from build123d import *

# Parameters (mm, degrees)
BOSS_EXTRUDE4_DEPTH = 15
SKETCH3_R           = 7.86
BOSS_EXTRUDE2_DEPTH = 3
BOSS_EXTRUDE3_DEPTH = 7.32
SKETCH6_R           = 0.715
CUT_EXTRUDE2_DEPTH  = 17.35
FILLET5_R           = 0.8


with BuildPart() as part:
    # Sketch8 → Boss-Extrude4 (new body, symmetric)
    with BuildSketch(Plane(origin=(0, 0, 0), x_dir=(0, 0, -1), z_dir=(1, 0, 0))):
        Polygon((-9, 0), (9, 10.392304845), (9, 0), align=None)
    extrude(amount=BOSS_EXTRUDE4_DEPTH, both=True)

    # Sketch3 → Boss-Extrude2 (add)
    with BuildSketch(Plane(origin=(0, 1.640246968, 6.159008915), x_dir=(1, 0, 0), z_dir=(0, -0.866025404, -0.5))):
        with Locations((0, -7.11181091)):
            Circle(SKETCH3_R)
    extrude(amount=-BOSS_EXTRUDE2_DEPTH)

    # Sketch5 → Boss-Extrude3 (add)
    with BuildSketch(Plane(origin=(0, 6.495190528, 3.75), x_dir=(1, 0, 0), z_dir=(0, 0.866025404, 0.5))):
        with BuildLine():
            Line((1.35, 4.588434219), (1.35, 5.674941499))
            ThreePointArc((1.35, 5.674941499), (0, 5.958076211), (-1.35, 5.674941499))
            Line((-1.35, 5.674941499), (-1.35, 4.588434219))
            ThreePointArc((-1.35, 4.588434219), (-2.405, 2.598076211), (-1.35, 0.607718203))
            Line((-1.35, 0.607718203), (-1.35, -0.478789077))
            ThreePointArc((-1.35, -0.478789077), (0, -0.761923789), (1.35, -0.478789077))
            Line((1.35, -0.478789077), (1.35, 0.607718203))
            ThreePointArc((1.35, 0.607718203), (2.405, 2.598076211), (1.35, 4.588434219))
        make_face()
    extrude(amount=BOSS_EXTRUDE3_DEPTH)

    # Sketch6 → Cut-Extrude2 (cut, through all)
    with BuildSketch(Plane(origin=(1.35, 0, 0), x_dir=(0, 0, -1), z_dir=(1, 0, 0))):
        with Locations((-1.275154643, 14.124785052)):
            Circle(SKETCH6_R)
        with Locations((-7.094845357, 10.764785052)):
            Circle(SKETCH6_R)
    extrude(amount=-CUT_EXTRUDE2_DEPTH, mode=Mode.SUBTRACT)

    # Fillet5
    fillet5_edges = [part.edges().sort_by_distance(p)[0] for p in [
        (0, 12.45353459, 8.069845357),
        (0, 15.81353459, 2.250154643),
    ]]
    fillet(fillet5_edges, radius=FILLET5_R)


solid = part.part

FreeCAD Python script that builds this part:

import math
import FreeCAD as App
import Part
import Sketcher
Q = App.Units.Quantity


def edges_at(feature, points):
    """Names of the edges that pass closest to the given points."""
    edges = feature.Shape.Edges
    near = lambda p: min(range(len(edges)), key=lambda i: edges[i].distToShape(Part.Vertex(*p))[0])
    return sorted({f"Edge{near(p) + 1}" for p in points})


def add_polygon(sketch, points):
    """Adds a closed chain of lines whose ends are joined by coincident constraints."""
    first, n = sketch.GeometryCount, len(points)
    for a, b in zip(points, points[1:] + points[:1]):
        sketch.addGeometry(Part.LineSegment(App.Vector(*a, 0), App.Vector(*b, 0)), False)
    for i in range(n):
        sketch.addConstraint(Sketcher.Constraint("Coincident", first + i, 2, first + (i + 1) % n, 1))

doc = App.newDocument("Part")
params = doc.addObject("Spreadsheet::Sheet", "Params")
for row, (alias, value) in enumerate([
    ("sketch1_height", "18 mm"),
    ("pad1_length", "30 mm"),
    ("sketch2_diameter", "15.72 mm"),
    ("pad2_length", "3 mm"),
    ("sketch3_radius", "3.36 mm"),
    ("pad3_length", "7.32 mm"),
    ("sketch4_diameter", "1.43 mm"),
    ("fillet_radius", "0.8 mm"),
], start=1):
    params.set(f"A{row}", alias)
    params.set(f"B{row}", "=" + value)
    params.setAlias(f"B{row}", alias)

body = doc.addObject("PartDesign::Body", "Body")

sketch1 = doc.addObject("Sketcher::SketchObject", "Sketch")
body.addObject(sketch1)
sketch1.AttachmentSupport = (doc.YZ_Plane, [""])
sketch1.MapMode = "FlatFace"
add_polygon(sketch1, [(10.392305, -9), (0, 9), (0, -9)])
sketch1.addConstraint([
    Sketcher.Constraint("Vertical", 1),
    Sketcher.Constraint("Horizontal", 2),
    Sketcher.Constraint("Symmetric", 0, 2, 1, 2, -1, 1),
    Sketcher.Constraint("DistanceY", 1, 2, 1, 1, Q("18 mm")),
    Sketcher.Constraint("Angle", 0, Q("120 deg")),
])
sketch1.setExpression("Constraints[6]", "Params.sketch1_height")
pad1 = doc.addObject("PartDesign::Pad", "Pad")
body.addObject(pad1)
pad1.Profile = sketch1
pad1.setExpression("Length", "Params.pad1_length")
pad1.Midplane = True

sketch2 = doc.addObject("Sketcher::SketchObject", "Sketch001")
body.addObject(sketch2)
sketch2.Placement = App.Placement(App.Vector(0, 1.640247, 6.159009), App.Rotation(App.Vector(1, 0, 0), App.Vector(0, -0.5, 0.866025404), App.Vector(0, -0.866025404, -0.5), "ZXY"))
sketch2.addGeometry(Part.Circle(App.Vector(0, -7.111811, 0), App.Vector(0, 0, 1), 7.86), False)
sketch2.addConstraint([
    Sketcher.Constraint("PointOnObject", 0, 3, -2),
    Sketcher.Constraint("Diameter", 0, Q("15.72 mm")),
    Sketcher.Constraint("DistanceY", 0, 3, -1, 1, Q("7.111811 mm")),
])
sketch2.setExpression("Constraints[1]", "Params.sketch2_diameter")
pad2 = doc.addObject("PartDesign::Pad", "Pad001")
body.addObject(pad2)
pad2.Profile = sketch2
pad2.setExpression("Length", "Params.pad2_length")
pad2.Reversed = True

sketch3 = doc.addObject("Sketcher::SketchObject", "Sketch002")
body.addObject(sketch3)
sketch3.Placement = App.Placement(App.Vector(0, 6.495191, 3.75), App.Rotation(App.Vector(1, 0, 0), App.Vector(0, 0.5, -0.866025404), App.Vector(0, 0.866025404, 0.5), "ZXY"))
sketch3.addGeometry([
    Part.LineSegment(App.Vector(1.35, 4.588434, 0), App.Vector(1.35, 5.674942, 0)),
    Part.ArcOfCircle(Part.Circle(App.Vector(0, 2.598076, 0), App.Vector(0, 0, 1), 3.36), math.radians(66.31014), math.radians(113.68986)),
    Part.LineSegment(App.Vector(-1.35, 5.674942, 0), App.Vector(-1.35, 4.588434, 0)),
    Part.ArcOfCircle(Part.Circle(App.Vector(0, 2.598076, 0), App.Vector(0, 0, 1), 2.405), math.radians(124.147865), math.radians(235.852135)),
    Part.LineSegment(App.Vector(-1.35, 0.607718, 0), App.Vector(-1.35, -0.478789, 0)),
    Part.ArcOfCircle(Part.Circle(App.Vector(0, 2.598076, 0), App.Vector(0, 0, 1), 3.36), math.radians(-113.68986), math.radians(-66.31014)),
    Part.LineSegment(App.Vector(1.35, -0.478789, 0), App.Vector(1.35, 0.607718, 0)),
    Part.ArcOfCircle(Part.Circle(App.Vector(0, 2.598076, 0), App.Vector(0, 0, 1), 2.405), math.radians(-55.852135), math.radians(55.852135)),
], False)
sketch3.addConstraint([
    Sketcher.Constraint("Coincident", 0, 2, 1, 1),
    Sketcher.Constraint("Coincident", 1, 2, 2, 1),
    Sketcher.Constraint("Coincident", 2, 2, 3, 1),
    Sketcher.Constraint("Coincident", 3, 2, 4, 1),
    Sketcher.Constraint("Coincident", 4, 2, 5, 1),
    Sketcher.Constraint("Coincident", 5, 2, 6, 1),
    Sketcher.Constraint("Coincident", 6, 2, 7, 1),
    Sketcher.Constraint("Coincident", 7, 2, 0, 1),
    Sketcher.Constraint("Vertical", 0),
    Sketcher.Constraint("Vertical", 2),
    Sketcher.Constraint("Vertical", 4),
    Sketcher.Constraint("Vertical", 6),
    Sketcher.Constraint("Coincident", 3, 3, 1, 3),
    Sketcher.Constraint("Coincident", 5, 3, 1, 3),
    Sketcher.Constraint("Coincident", 7, 3, 1, 3),
    Sketcher.Constraint("Equal", 1, 5),
    Sketcher.Constraint("Equal", 3, 7),
    Sketcher.Constraint("Symmetric", 0, 2, 1, 2, -2),
    Sketcher.Constraint("Horizontal", 4, 2, 5, 2),
    Sketcher.Constraint("Vertical", 2, 2, 3, 2),
    Sketcher.Constraint("Radius", 1, Q("3.36 mm")),
    Sketcher.Constraint("Radius", 3, Q("2.405 mm")),
    Sketcher.Constraint("DistanceX", 1, 2, 0, 2, Q("2.7 mm")),
    Sketcher.Constraint("DistanceY", -1, 1, 0, 2, Q("5.674942 mm")),
])
sketch3.setExpression("Constraints[20]", "Params.sketch3_radius")
pad3 = doc.addObject("PartDesign::Pad", "Pad002")
body.addObject(pad3)
pad3.Profile = sketch3
pad3.setExpression("Length", "Params.pad3_length")

sketch4 = doc.addObject("Sketcher::SketchObject", "Sketch003")
body.addObject(sketch4)
sketch4.AttachmentSupport = (doc.YZ_Plane, [""])
sketch4.MapMode = "FlatFace"
sketch4.AttachmentOffset = App.Placement(App.Vector(0, 0, 1.35), App.Rotation())
sketch4.addGeometry([
    Part.Circle(App.Vector(14.124785, 1.275155, 0), App.Vector(0, 0, 1), 0.715),
    Part.Circle(App.Vector(10.764785, 7.094845, 0), App.Vector(0, 0, 1), 0.715),
], False)
sketch4.addConstraint([
    Sketcher.Constraint("Equal", 0, 1),
    Sketcher.Constraint("Diameter", 0, Q("1.43 mm")),
    Sketcher.Constraint("DistanceX", 1, 3, 0, 3, Q("3.36 mm")),
    Sketcher.Constraint("DistanceY", 0, 3, 1, 3, Q("5.819691 mm")),
    Sketcher.Constraint("DistanceX", -1, 1, 0, 3, Q("14.124785 mm")),
    Sketcher.Constraint("DistanceY", -1, 1, 0, 3, Q("1.275155 mm")),
])
sketch4.setExpression("Constraints[1]", "Params.sketch4_diameter")
pocket1 = doc.addObject("PartDesign::Pocket", "Pocket")
body.addObject(pocket1)
pocket1.Profile = sketch4
pocket1.Type = "ThroughAll"
doc.recompute()

fillet = doc.addObject("PartDesign::Fillet", "Fillet")
body.addObject(fillet)
fillet.Base = (pocket1, edges_at(pocket1, [(0, 12.454, 8.07), (0, 15.814, 2.25)]))
fillet.setExpression("Radius", "Params.fillet_radius")

doc.recompute()
